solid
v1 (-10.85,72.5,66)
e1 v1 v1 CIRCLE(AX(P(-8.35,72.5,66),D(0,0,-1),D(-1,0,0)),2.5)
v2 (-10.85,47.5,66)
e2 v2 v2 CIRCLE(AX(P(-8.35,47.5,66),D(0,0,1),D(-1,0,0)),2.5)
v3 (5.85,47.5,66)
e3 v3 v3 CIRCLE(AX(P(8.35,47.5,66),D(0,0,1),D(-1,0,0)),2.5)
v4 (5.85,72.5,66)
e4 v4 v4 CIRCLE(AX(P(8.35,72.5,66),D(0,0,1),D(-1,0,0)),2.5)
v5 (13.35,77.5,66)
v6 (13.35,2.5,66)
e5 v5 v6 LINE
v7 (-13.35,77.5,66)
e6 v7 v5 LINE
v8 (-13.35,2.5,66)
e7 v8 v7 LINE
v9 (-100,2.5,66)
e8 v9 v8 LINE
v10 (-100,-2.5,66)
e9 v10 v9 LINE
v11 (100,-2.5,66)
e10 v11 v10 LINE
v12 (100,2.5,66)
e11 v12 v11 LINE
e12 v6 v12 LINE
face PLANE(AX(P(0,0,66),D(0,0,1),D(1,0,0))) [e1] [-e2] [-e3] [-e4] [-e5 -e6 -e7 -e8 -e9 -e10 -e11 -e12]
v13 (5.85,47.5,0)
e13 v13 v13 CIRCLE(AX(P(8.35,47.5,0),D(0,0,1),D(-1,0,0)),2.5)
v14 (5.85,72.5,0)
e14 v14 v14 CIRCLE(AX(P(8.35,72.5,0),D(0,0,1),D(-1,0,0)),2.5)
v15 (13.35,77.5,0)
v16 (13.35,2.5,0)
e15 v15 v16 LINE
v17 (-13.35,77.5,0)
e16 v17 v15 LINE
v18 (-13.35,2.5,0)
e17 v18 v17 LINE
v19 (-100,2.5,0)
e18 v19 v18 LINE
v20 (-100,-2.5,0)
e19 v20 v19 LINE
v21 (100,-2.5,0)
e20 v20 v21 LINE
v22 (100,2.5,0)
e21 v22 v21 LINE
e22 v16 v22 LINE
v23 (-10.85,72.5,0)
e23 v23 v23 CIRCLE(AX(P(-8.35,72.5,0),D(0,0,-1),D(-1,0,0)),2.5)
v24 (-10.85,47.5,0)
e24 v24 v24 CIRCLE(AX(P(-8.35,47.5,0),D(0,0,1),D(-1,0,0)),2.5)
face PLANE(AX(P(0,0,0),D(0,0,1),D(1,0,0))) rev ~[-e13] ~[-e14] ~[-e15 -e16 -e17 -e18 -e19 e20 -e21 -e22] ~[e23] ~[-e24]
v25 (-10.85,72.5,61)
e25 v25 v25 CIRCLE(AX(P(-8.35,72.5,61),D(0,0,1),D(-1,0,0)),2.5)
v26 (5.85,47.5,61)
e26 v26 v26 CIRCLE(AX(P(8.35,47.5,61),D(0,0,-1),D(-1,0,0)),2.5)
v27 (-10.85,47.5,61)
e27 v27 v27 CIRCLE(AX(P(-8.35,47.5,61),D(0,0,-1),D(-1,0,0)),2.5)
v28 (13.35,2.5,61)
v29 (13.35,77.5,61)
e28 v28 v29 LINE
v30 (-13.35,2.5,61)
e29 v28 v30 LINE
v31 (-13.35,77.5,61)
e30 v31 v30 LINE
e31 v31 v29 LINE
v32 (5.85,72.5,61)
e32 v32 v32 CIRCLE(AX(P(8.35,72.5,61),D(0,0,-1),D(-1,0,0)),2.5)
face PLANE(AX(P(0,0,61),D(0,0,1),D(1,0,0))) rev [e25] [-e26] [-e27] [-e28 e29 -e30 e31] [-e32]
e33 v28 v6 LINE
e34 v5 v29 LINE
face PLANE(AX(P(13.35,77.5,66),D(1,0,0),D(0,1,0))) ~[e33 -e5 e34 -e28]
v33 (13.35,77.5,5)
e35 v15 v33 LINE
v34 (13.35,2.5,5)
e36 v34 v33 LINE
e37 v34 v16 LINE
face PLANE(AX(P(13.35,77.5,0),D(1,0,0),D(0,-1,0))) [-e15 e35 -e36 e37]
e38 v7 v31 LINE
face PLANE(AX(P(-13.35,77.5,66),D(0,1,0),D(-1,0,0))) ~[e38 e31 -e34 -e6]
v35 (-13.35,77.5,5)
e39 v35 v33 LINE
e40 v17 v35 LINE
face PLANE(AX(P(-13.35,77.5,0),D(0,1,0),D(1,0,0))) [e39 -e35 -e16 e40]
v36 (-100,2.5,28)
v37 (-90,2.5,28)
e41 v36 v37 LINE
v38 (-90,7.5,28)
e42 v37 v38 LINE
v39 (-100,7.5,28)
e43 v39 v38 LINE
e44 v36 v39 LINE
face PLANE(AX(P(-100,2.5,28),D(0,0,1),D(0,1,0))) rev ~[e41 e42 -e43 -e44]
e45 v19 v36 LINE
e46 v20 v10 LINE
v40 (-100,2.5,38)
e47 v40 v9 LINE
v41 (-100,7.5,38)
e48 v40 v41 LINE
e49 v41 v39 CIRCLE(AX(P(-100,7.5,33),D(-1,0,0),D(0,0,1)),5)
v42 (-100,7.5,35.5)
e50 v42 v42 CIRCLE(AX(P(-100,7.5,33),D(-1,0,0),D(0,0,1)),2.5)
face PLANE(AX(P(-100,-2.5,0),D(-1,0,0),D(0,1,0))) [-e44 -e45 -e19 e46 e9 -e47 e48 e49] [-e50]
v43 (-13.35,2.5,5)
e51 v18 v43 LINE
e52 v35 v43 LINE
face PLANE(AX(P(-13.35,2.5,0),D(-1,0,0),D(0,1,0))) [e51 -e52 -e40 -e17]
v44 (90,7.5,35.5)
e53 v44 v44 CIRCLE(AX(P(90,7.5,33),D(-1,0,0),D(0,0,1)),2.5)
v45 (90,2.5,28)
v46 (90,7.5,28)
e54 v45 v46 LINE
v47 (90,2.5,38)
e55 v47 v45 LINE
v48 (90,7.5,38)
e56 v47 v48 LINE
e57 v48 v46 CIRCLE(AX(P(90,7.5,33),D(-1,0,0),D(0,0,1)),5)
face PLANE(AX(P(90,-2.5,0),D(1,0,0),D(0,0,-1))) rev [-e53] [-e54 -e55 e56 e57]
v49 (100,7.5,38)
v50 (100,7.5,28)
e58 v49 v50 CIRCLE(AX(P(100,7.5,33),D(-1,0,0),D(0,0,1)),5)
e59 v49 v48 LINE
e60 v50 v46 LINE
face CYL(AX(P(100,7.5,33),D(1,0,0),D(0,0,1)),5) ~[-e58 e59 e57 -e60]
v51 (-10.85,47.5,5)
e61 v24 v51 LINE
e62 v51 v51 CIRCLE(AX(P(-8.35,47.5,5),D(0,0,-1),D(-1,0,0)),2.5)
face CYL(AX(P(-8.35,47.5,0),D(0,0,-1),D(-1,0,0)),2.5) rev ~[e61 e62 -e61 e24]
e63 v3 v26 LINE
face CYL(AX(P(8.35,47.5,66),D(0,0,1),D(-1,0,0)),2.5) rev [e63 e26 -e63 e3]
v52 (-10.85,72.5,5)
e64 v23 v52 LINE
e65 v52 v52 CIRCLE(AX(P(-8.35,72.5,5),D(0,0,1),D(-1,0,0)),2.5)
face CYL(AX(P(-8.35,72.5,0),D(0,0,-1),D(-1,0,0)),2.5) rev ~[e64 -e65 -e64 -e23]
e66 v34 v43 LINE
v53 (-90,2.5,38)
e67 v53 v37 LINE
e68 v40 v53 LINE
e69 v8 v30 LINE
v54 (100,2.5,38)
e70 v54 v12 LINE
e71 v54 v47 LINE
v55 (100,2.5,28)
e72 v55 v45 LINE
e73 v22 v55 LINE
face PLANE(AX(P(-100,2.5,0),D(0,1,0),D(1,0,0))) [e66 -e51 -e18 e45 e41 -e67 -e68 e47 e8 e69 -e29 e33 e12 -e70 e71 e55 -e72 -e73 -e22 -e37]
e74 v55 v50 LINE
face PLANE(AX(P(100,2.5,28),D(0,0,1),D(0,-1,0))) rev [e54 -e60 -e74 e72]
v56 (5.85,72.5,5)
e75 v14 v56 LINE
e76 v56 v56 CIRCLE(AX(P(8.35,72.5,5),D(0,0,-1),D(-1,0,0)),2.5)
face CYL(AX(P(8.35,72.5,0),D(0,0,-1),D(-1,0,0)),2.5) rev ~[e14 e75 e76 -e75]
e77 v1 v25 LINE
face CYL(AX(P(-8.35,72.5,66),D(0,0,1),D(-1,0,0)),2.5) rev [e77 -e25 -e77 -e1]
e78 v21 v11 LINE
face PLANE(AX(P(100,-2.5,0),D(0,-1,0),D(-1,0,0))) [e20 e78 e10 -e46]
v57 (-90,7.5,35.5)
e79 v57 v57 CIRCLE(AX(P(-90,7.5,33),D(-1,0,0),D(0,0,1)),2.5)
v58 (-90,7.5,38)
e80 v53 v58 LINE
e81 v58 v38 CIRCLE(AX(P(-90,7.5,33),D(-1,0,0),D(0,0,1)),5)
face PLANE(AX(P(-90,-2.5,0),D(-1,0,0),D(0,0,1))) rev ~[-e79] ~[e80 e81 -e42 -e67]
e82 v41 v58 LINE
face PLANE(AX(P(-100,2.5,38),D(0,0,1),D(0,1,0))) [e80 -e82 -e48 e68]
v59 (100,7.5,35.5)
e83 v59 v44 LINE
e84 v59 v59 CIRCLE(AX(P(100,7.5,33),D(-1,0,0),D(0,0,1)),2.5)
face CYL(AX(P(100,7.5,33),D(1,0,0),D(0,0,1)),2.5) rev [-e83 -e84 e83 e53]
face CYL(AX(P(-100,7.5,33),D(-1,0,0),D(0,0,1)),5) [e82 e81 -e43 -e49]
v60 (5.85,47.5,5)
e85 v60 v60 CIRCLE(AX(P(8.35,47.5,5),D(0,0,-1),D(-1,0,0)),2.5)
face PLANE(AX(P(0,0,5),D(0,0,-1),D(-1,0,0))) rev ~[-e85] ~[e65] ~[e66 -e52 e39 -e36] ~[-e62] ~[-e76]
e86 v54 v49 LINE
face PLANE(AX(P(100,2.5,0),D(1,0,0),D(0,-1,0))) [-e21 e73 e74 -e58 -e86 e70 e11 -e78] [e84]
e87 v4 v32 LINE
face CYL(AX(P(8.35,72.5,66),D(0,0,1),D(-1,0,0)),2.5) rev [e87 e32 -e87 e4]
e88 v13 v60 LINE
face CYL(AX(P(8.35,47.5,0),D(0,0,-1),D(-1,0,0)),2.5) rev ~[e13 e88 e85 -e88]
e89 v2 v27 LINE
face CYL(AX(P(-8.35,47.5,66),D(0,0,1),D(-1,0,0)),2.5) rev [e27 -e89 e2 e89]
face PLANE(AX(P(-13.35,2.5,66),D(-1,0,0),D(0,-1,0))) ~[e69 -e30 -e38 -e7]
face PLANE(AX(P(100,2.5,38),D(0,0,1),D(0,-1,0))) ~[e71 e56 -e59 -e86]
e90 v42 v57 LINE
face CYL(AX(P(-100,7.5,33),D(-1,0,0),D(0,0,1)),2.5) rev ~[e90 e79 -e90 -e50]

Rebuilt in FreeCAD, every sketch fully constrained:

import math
import FreeCAD as App
import Part
import Sketcher

V = App.Vector
Q = App.Units.Quantity

doc = App.newDocument("Part")
body = doc.addObject("PartDesign::Body", "Body")

# Sketch on XY plane
sketch1 = doc.addObject("Sketcher::SketchObject", "Sketch")
body.addObject(sketch1)
sketch1.AttachmentSupport = (doc.XY_Plane, [""])
sketch1.MapMode = "FlatFace"
sketch1.addGeometry([
    Part.LineSegment(V(-100, -2, 0), V(100, -2, 0)),
    Part.LineSegment(V(100, -2, 0), V(100, 2, 0)),
    Part.LineSegment(V(100, 2, 0), V(-100, 2, 0)),
    Part.LineSegment(V(-100, 2, 0), V(-100, -2, 0)),
], False)
sketch1.addConstraint([
    Sketcher.Constraint("Coincident", 0, 2, 1, 1),
    Sketcher.Constraint("Coincident", 1, 2, 2, 1),
    Sketcher.Constraint("Coincident", 2, 2, 3, 1),
    Sketcher.Constraint("Coincident", 3, 2, 0, 1),
    Sketcher.Constraint("Horizontal", 0),
    Sketcher.Constraint("Vertical", 1),
    Sketcher.Constraint("Horizontal", 2),
    Sketcher.Constraint("Vertical", 3),
    Sketcher.Constraint("Symmetric", 0, 2, 2, 2, -1, 1),
    Sketcher.Constraint("DistanceX", 0, 1, 0, 2, Q("200 mm")),
    Sketcher.Constraint("DistanceY", 1, 1, 1, 2, Q("5 mm")),
])
pad1 = doc.addObject("PartDesign::Pad", "Pad")
body.addObject(pad1)
pad1.Profile = sketch1
pad1.Length = 66

# Sketch on XY plane
sketch2 = doc.addObject("Sketcher::SketchObject", "Sketch001")
body.addObject(sketch2)
sketch2.AttachmentSupport = (doc.XY_Plane, [""])
sketch2.MapMode = "FlatFace"
sketch2.addGeometry([
    Part.Circle(V(8.3, 72.5, 0), V(0, 0, 1), 2.5),
    Part.Circle(V(-8.3, 72.5, 0), V(0, 0, 1), 2.5),
    Part.Circle(V(8.3, 47.5, 0), V(0, 0, 1), 2.5),
    Part.Circle(V(-8.3, 47.5, 0), V(0, 0, 1), 2.5),
], False)
sketch2.addConstraint([
    Sketcher.Constraint("Equal", 0, 1),
    Sketcher.Constraint("Equal", 1, 2),
    Sketcher.Constraint("Equal", 2, 3),
    Sketcher.Constraint("Symmetric", 0, 3, 1, 3, -2),
    Sketcher.Constraint("Symmetric", 2, 3, 3, 3, -2),
    Sketcher.Constraint("Vertical", 0, 3, 2, 3),
    Sketcher.Constraint("Diameter", 0, Q("5 mm")),
    Sketcher.Constraint("DistanceY", 2, 3, 0, 3, Q("25 mm")),
    Sketcher.Constraint("DistanceX", 1, 3, 0, 3, Q("16.7 mm")),
    Sketcher.Constraint("DistanceY", -1, 1, 0, 3, Q("72.5 mm")),
])
pocket1 = doc.addObject("PartDesign::Pocket", "Pocket")
body.addObject(pocket1)
pocket1.Profile = sketch2
pocket1.Length = 5

# Sketch on YZ plane
sketch3 = doc.addObject("Sketcher::SketchObject", "Sketch002")
body.addObject(sketch3)
sketch3.AttachmentSupport = (doc.YZ_Plane, [""])
sketch3.MapMode = "FlatFace"
sketch3.AttachmentOffset = App.Placement(V(0, 0, -100), App.Rotation())
sketch3.addGeometry([
    Part.ArcOfCircle(Part.Circle(V(7.5, 33, 0), V(0, 0, 1), 5), math.radians(-90), math.radians(90)),  # 0
    Part.LineSegment(V(7.5, 28, 0), V(2.5, 28, 0)),  # 1
    Part.LineSegment(V(2.5, 28, 0), V(2.5, 38, 0)),  # 2
    Part.LineSegment(V(2.5, 38, 0), V(7.5, 38, 0)),  # 3
    Part.Circle(V(7.5, 33, 0), V(0, 0, 1), 2.5),  # 4
], False)
sketch3.addConstraint([
    Sketcher.Constraint("Tangent", 0, 1, 1, 1),
    Sketcher.Constraint("Coincident", 1, 2, 2, 1),
    Sketcher.Constraint("Coincident", 2, 2, 3, 1),
    Sketcher.Constraint("Tangent", 3, 2, 0, 2),
    Sketcher.Constraint("Horizontal", 1),
    Sketcher.Constraint("Vertical", 2),
    Sketcher.Constraint("Horizontal", 3),
    Sketcher.Constraint("Coincident", 4, 3, 0, 3),
    Sketcher.Constraint("Diameter", 4, Q("5 mm")),
    Sketcher.Constraint("Radius", 0, Q("5 mm")),
    Sketcher.Constraint("DistanceX", 1, 2, 1, 1, Q("5 mm")),
    Sketcher.Constraint("DistanceY", -1, 1, 0, 3, Q("33 mm")),
    Sketcher.Constraint("DistanceX", -1, 1, 0, 3, Q("7.5 mm")),
])
pad2 = doc.addObject("PartDesign::Pad", "Pad001")
body.addObject(pad2)
pad2.Profile = sketch3
pad2.Length = 10
doc.recompute()

mirrored = doc.addObject("PartDesign::Mirrored", "Mirrored")
body.addObject(mirrored)
mirrored.Originals = [pad2]
mirrored.MirrorPlane = (doc.YZ_Plane, [""])
body.Tip = mirrored

# Sketch on XY plane
sketch4 = doc.addObject("Sketcher::SketchObject", "Sketch003")
body.addObject(sketch4)
sketch4.AttachmentSupport = (doc.XY_Plane, [""])
sketch4.MapMode = "FlatFace"
sketch4.addGeometry([
    Part.LineSegment(V(13.3, 77.5, 0), V(13.3, -2.5, 0)),  # 0
    Part.LineSegment(V(13.3, -2.5, 0), V(-13.3, -2.5, 0)),  # 1
    Part.LineSegment(V(-13.3, -2.5, 0), V(-13.3, 77.5, 0)),  # 2
    Part.LineSegment(V(-13.3, 77.5, 0), V(13.3, 77.5, 0)),  # 3
    Part.Circle(V(-8.3, 72.5, 0), V(0, 0, 1), 2.5),  # 4
    Part.Circle(V(-8.3, 47.5, 0), V(0, 0, 1), 2.5),  # 5
    Part.Circle(V(8.3, 47.5, 0), V(0, 0, 1), 2.5),  # 6
    Part.Circle(V(8.3, 72.5, 0), V(0, 0, 1), 2.5),  # 7
], False)
sketch4.addConstraint([
    Sketcher.Constraint("Coincident", 0, 2, 1, 1),
    Sketcher.Constraint("Coincident", 1, 2, 2, 1),
    Sketcher.Constraint("Coincident", 2, 2, 3, 1),
    Sketcher.Constraint("Coincident", 3, 2, 0, 1),
    Sketcher.Constraint("Vertical", 0),
    Sketcher.Constraint("Horizontal", 1),
    Sketcher.Constraint("Vertical", 2),
    Sketcher.Constraint("Horizontal", 3),
    Sketcher.Constraint("Equal", 4, 5),
    Sketcher.Constraint("Equal", 5, 6),
    Sketcher.Constraint("Equal", 6, 7),
    Sketcher.Constraint("Symmetric", 5, 3, 6, 3, -2),
    Sketcher.Constraint("Symmetric", 4, 3, 7, 3, -2),
    Sketcher.Constraint("Vertical", 4, 3, 5, 3),
    Sketcher.Constraint("Diameter", 4, Q("5 mm")),
    Sketcher.Constraint("DistanceY", 5, 3, 4, 3, Q("25 mm")),
    Sketcher.Constraint("DistanceX", 6, 3, 0, 2, Q("5 mm")),
    Sketcher.Constraint("DistanceY", 0, 2, 6, 3, Q("50 mm")),
    Sketcher.Constraint("DistanceX", 1, 2, 5, 3, Q("5 mm")),
    Sketcher.Constraint("DistanceY", 4, 3, 2, 2, Q("5 mm")),
    Sketcher.Constraint("DistanceX", 5, 3, 6, 3, Q("16.7 mm")),
    Sketcher.Constraint("DistanceY", -1, 1, 4, 3, Q("72.5 mm")),
])
pad3 = doc.addObject("PartDesign::Pad", "Pad002")
body.addObject(pad3)
pad3.Profile = sketch4
pad3.Length = 5
doc.recompute()

datumplane = doc.addObject("PartDesign::Plane", "DatumPlane")
body.addObject(datumplane)
datumplane.AttachmentSupport = (doc.XY_Plane, [""])
datumplane.MapMode = "FlatFace"
datumplane.AttachmentOffset = App.Placement(V(0, 0, 33), App.Rotation())
mirrored2 = doc.addObject("PartDesign::Mirrored", "Mirrored001")
body.addObject(mirrored2)
mirrored2.Originals = [pad3]
mirrored2.MirrorPlane = (datumplane, [""])
body.Tip = mirrored2

doc.recompute()
